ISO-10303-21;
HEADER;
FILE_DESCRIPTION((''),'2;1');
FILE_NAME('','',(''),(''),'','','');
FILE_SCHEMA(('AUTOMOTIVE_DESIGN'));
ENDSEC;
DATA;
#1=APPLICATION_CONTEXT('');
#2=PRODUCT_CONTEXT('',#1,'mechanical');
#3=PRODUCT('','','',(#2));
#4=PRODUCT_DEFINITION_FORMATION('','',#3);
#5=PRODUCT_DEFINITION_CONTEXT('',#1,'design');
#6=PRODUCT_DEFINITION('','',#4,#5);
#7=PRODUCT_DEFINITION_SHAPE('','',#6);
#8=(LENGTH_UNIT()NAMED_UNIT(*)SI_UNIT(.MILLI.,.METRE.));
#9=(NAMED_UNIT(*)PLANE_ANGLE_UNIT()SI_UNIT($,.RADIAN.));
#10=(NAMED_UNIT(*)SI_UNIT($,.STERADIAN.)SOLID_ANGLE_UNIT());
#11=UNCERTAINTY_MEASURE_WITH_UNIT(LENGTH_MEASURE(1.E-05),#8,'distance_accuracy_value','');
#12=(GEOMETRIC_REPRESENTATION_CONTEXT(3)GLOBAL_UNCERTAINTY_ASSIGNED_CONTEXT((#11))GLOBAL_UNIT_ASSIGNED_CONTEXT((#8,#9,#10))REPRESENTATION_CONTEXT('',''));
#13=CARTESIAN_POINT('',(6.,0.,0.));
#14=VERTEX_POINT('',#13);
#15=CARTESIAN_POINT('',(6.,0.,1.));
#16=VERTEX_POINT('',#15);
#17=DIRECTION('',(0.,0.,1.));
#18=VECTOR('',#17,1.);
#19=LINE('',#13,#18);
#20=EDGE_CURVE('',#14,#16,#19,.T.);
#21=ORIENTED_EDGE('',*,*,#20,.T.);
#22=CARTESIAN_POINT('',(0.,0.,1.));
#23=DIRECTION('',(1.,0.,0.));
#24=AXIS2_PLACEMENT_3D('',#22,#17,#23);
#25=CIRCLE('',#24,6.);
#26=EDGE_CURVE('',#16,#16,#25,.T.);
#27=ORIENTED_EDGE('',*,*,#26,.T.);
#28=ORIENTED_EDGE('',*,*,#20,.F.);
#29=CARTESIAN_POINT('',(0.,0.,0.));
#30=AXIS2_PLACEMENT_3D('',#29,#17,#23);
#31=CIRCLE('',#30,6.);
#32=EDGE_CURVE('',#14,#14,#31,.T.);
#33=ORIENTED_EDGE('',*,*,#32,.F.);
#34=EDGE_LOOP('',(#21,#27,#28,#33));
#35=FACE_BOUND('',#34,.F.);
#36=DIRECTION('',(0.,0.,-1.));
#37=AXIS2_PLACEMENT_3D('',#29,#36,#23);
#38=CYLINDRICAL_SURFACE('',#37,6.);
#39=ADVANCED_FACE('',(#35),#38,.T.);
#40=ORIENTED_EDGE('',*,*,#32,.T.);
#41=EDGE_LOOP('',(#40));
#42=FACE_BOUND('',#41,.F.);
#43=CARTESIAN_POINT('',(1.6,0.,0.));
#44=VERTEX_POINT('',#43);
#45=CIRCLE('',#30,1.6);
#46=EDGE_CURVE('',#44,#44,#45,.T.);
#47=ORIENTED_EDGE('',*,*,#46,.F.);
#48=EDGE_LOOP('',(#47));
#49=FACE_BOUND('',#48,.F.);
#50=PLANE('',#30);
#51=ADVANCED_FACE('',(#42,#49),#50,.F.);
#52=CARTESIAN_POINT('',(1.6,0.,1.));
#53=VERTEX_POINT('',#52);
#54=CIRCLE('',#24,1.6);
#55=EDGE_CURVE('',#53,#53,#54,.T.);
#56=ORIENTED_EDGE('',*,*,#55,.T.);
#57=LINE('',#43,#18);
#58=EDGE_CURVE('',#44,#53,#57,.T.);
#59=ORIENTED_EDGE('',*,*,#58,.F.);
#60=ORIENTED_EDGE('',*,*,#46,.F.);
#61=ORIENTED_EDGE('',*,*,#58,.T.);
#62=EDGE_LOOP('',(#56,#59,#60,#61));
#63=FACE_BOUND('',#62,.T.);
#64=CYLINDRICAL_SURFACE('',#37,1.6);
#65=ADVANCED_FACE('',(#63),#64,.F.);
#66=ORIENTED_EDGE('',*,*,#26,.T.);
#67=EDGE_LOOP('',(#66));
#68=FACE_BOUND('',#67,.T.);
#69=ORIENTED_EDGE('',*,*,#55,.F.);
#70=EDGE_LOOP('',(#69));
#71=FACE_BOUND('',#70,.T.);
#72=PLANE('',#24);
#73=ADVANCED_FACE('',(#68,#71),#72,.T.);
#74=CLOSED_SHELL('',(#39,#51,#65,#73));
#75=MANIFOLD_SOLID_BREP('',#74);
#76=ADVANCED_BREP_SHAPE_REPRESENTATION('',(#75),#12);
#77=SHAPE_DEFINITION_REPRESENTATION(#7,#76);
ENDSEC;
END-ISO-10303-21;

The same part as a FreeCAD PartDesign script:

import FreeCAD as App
import Part
import Sketcher
Q = App.Units.Quantity

doc = App.newDocument("Part")
body = doc.addObject("PartDesign::Body", "Body")

sketch1 = body.newObject("Sketcher::SketchObject", "Sketch")
sketch1.AttachmentSupport = (doc.getObject("XY_Plane"), [""])
sketch1.MapMode = "FlatFace"
sketch1.addGeometry(Part.Circle(App.Vector(0, 0, 0), App.Vector(0, 0, 1), 6), False)
sketch1.addGeometry(Part.Circle(App.Vector(0, 0, 0), App.Vector(0, 0, 1), 1.6), False)
sketch1.addConstraint(Sketcher.Constraint("Coincident", 0, 3, -1, 1))
sketch1.addConstraint(Sketcher.Constraint("Coincident", 1, 3, -1, 1))
sketch1.addConstraint(Sketcher.Constraint("Diameter", 0, Q("12 mm")))
sketch1.addConstraint(Sketcher.Constraint("Diameter", 1, Q("3.2 mm")))
pad1 = body.newObject("PartDesign::Pad", "Pad")
pad1.Profile = sketch1
pad1.Length = 1

doc.recompute()
